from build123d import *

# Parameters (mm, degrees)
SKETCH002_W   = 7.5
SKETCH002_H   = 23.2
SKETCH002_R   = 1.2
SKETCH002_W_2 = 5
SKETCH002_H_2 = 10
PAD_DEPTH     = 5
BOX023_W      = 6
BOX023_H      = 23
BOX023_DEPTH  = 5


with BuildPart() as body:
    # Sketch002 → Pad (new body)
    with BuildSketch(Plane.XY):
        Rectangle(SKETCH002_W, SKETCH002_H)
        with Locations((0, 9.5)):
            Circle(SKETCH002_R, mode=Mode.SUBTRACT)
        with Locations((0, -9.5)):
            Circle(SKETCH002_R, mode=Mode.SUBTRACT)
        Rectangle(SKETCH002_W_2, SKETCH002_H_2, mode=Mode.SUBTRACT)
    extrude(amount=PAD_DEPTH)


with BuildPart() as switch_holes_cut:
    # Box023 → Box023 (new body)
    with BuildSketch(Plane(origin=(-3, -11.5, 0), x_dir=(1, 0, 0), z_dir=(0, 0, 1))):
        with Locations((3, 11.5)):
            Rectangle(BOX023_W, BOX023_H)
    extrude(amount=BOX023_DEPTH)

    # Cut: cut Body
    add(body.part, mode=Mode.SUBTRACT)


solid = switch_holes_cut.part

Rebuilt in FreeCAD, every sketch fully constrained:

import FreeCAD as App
import Part
import Sketcher

V = App.Vector
Q = App.Units.Quantity

doc = App.newDocument("Part")
body = doc.addObject("PartDesign::Body", "Body")

# Sketch on XY plane
sketch1 = body.newObject("Sketcher::SketchObject", "Sketch")
sketch1.AttachmentSupport = (doc.getObject("XY_Plane"), [""])
sketch1.MapMode = "FlatFace"
sketch1.addGeometry(Part.LineSegment(V(-3.8, 11.6, 0), V(-3.8, -11.6, 0)), False)
sketch1.addGeometry(Part.LineSegment(V(-3.8, -11.6, 0), V(3.8, -11.6, 0)), False)
sketch1.addGeometry(Part.LineSegment(V(3.8, -11.6, 0), V(3.8, 11.6, 0)), False)
sketch1.addGeometry(Part.LineSegment(V(3.8, 11.6, 0), V(-3.8, 11.6, 0)), False)
sketch1.addGeometry(Part.Circle(V(0, -9.5, 0), V(0, 0, 1), 1.2), False)
sketch1.addGeometry(Part.LineSegment(V(2.5, -5, 0), V(-2.5, -5, 0)), False)
sketch1.addGeometry(Part.LineSegment(V(-2.5, -5, 0), V(-2.5, 5, 0)), False)
sketch1.addGeometry(Part.LineSegment(V(-2.5, 5, 0), V(2.5, 5, 0)), False)
sketch1.addGeometry(Part.LineSegment(V(2.5, 5, 0), V(2.5, -5, 0)), False)
sketch1.addGeometry(Part.Circle(V(0, 9.5, 0), V(0, 0, 1), 1.2), False)
sketch1.addConstraint(Sketcher.Constraint("Coincident", 0, 2, 1, 1))
sketch1.addConstraint(Sketcher.Constraint("Coincident", 1, 2, 2, 1))
sketch1.addConstraint(Sketcher.Constraint("Coincident", 2, 2, 3, 1))
sketch1.addConstraint(Sketcher.Constraint("Coincident", 3, 2, 0, 1))
sketch1.addConstraint(Sketcher.Constraint("Coincident", 5, 2, 6, 1))
sketch1.addConstraint(Sketcher.Constraint("Coincident", 6, 2, 7, 1))
sketch1.addConstraint(Sketcher.Constraint("Coincident", 7, 2, 8, 1))
sketch1.addConstraint(Sketcher.Constraint("Coincident", 8, 2, 5, 1))
sketch1.addConstraint(Sketcher.Constraint("Vertical", 0))
sketch1.addConstraint(Sketcher.Constraint("Horizontal", 1))
sketch1.addConstraint(Sketcher.Constraint("Vertical", 2))
sketch1.addConstraint(Sketcher.Constraint("Horizontal", 3))
sketch1.addConstraint(Sketcher.Constraint("Horizontal", 5))
sketch1.addConstraint(Sketcher.Constraint("Vertical", 6))
sketch1.addConstraint(Sketcher.Constraint("Horizontal", 7))
sketch1.addConstraint(Sketcher.Constraint("Vertical", 8))
sketch1.addConstraint(Sketcher.Constraint("Equal", 4, 9))
sketch1.addConstraint(Sketcher.Constraint("Symmetric", 4, 3, 9, 3, -1, 1))
sketch1.addConstraint(Sketcher.Constraint("Symmetric", 0, 2, 2, 2, -1, 1))
sketch1.addConstraint(Sketcher.Constraint("Symmetric", 5, 2, 7, 2, -1, 1))
sketch1.addConstraint(Sketcher.Constraint("PointOnObject", 4, 3, -2))
sketch1.addConstraint(Sketcher.Constraint("Diameter", 4, Q("2.4 mm")))
sketch1.addConstraint(Sketcher.Constraint("DistanceX", 5, 2, 5, 1, Q("5 mm")))
sketch1.addConstraint(Sketcher.Constraint("DistanceY", 6, 1, 6, 2, Q("10 mm")))
sketch1.addConstraint(Sketcher.Constraint("DistanceX", 1, 1, 1, 2, Q("7.5 mm")))
sketch1.addConstraint(Sketcher.Constraint("DistanceY", 0, 2, 0, 1, Q("23.2 mm")))
sketch1.addConstraint(Sketcher.Constraint("DistanceY", 4, 3, 9, 3, Q("19 mm")))
pad1 = body.newObject("PartDesign::Pad", "Pad")
pad1.Profile = sketch1
pad1.Length = 5
body2 = doc.addObject("PartDesign::Body", "Body001")
body2.AllowCompound = True

# Sketch on XY plane
sketch2 = body2.newObject("Sketcher::SketchObject", "Sketch001")
sketch2.AttachmentSupport = (doc.getObject("XY_Plane001"), [""])
sketch2.MapMode = "FlatFace"
sketch2.addGeometry(Part.LineSegment(V(-3, 12, 0), V(-3, -12, 0)), False)
sketch2.addGeometry(Part.LineSegment(V(-3, -12, 0), V(3, -12, 0)), False)
sketch2.addGeometry(Part.LineSegment(V(3, -12, 0), V(3, 12, 0)), False)
sketch2.addGeometry(Part.LineSegment(V(3, 12, 0), V(-3, 12, 0)), False)
sketch2.addConstraint(Sketcher.Constraint("Coincident", 0, 2, 1, 1))
sketch2.addConstraint(Sketcher.Constraint("Coincident", 1, 2, 2, 1))
sketch2.addConstraint(Sketcher.Constraint("Coincident", 2, 2, 3, 1))
sketch2.addConstraint(Sketcher.Constraint("Coincident", 3, 2, 0, 1))
sketch2.addConstraint(Sketcher.Constraint("Vertical", 0))
sketch2.addConstraint(Sketcher.Constraint("Horizontal", 1))
sketch2.addConstraint(Sketcher.Constraint("Vertical", 2))
sketch2.addConstraint(Sketcher.Constraint("Horizontal", 3))
sketch2.addConstraint(Sketcher.Constraint("Symmetric", 0, 2, 2, 2, -1, 1))
sketch2.addConstraint(Sketcher.Constraint("DistanceX", 1, 1, 1, 2, Q("6 mm")))
sketch2.addConstraint(Sketcher.Constraint("DistanceY", 0, 2, 0, 1, Q("23 mm")))
pad2 = body2.newObject("PartDesign::Pad", "Pad001")
pad2.Profile = sketch2
pad2.Length = 5
doc.recompute()

boolean = body2.newObject("PartDesign::Boolean", "Boolean")
boolean.Type = "Cut"
boolean.addObjects([body])

doc.recompute()
